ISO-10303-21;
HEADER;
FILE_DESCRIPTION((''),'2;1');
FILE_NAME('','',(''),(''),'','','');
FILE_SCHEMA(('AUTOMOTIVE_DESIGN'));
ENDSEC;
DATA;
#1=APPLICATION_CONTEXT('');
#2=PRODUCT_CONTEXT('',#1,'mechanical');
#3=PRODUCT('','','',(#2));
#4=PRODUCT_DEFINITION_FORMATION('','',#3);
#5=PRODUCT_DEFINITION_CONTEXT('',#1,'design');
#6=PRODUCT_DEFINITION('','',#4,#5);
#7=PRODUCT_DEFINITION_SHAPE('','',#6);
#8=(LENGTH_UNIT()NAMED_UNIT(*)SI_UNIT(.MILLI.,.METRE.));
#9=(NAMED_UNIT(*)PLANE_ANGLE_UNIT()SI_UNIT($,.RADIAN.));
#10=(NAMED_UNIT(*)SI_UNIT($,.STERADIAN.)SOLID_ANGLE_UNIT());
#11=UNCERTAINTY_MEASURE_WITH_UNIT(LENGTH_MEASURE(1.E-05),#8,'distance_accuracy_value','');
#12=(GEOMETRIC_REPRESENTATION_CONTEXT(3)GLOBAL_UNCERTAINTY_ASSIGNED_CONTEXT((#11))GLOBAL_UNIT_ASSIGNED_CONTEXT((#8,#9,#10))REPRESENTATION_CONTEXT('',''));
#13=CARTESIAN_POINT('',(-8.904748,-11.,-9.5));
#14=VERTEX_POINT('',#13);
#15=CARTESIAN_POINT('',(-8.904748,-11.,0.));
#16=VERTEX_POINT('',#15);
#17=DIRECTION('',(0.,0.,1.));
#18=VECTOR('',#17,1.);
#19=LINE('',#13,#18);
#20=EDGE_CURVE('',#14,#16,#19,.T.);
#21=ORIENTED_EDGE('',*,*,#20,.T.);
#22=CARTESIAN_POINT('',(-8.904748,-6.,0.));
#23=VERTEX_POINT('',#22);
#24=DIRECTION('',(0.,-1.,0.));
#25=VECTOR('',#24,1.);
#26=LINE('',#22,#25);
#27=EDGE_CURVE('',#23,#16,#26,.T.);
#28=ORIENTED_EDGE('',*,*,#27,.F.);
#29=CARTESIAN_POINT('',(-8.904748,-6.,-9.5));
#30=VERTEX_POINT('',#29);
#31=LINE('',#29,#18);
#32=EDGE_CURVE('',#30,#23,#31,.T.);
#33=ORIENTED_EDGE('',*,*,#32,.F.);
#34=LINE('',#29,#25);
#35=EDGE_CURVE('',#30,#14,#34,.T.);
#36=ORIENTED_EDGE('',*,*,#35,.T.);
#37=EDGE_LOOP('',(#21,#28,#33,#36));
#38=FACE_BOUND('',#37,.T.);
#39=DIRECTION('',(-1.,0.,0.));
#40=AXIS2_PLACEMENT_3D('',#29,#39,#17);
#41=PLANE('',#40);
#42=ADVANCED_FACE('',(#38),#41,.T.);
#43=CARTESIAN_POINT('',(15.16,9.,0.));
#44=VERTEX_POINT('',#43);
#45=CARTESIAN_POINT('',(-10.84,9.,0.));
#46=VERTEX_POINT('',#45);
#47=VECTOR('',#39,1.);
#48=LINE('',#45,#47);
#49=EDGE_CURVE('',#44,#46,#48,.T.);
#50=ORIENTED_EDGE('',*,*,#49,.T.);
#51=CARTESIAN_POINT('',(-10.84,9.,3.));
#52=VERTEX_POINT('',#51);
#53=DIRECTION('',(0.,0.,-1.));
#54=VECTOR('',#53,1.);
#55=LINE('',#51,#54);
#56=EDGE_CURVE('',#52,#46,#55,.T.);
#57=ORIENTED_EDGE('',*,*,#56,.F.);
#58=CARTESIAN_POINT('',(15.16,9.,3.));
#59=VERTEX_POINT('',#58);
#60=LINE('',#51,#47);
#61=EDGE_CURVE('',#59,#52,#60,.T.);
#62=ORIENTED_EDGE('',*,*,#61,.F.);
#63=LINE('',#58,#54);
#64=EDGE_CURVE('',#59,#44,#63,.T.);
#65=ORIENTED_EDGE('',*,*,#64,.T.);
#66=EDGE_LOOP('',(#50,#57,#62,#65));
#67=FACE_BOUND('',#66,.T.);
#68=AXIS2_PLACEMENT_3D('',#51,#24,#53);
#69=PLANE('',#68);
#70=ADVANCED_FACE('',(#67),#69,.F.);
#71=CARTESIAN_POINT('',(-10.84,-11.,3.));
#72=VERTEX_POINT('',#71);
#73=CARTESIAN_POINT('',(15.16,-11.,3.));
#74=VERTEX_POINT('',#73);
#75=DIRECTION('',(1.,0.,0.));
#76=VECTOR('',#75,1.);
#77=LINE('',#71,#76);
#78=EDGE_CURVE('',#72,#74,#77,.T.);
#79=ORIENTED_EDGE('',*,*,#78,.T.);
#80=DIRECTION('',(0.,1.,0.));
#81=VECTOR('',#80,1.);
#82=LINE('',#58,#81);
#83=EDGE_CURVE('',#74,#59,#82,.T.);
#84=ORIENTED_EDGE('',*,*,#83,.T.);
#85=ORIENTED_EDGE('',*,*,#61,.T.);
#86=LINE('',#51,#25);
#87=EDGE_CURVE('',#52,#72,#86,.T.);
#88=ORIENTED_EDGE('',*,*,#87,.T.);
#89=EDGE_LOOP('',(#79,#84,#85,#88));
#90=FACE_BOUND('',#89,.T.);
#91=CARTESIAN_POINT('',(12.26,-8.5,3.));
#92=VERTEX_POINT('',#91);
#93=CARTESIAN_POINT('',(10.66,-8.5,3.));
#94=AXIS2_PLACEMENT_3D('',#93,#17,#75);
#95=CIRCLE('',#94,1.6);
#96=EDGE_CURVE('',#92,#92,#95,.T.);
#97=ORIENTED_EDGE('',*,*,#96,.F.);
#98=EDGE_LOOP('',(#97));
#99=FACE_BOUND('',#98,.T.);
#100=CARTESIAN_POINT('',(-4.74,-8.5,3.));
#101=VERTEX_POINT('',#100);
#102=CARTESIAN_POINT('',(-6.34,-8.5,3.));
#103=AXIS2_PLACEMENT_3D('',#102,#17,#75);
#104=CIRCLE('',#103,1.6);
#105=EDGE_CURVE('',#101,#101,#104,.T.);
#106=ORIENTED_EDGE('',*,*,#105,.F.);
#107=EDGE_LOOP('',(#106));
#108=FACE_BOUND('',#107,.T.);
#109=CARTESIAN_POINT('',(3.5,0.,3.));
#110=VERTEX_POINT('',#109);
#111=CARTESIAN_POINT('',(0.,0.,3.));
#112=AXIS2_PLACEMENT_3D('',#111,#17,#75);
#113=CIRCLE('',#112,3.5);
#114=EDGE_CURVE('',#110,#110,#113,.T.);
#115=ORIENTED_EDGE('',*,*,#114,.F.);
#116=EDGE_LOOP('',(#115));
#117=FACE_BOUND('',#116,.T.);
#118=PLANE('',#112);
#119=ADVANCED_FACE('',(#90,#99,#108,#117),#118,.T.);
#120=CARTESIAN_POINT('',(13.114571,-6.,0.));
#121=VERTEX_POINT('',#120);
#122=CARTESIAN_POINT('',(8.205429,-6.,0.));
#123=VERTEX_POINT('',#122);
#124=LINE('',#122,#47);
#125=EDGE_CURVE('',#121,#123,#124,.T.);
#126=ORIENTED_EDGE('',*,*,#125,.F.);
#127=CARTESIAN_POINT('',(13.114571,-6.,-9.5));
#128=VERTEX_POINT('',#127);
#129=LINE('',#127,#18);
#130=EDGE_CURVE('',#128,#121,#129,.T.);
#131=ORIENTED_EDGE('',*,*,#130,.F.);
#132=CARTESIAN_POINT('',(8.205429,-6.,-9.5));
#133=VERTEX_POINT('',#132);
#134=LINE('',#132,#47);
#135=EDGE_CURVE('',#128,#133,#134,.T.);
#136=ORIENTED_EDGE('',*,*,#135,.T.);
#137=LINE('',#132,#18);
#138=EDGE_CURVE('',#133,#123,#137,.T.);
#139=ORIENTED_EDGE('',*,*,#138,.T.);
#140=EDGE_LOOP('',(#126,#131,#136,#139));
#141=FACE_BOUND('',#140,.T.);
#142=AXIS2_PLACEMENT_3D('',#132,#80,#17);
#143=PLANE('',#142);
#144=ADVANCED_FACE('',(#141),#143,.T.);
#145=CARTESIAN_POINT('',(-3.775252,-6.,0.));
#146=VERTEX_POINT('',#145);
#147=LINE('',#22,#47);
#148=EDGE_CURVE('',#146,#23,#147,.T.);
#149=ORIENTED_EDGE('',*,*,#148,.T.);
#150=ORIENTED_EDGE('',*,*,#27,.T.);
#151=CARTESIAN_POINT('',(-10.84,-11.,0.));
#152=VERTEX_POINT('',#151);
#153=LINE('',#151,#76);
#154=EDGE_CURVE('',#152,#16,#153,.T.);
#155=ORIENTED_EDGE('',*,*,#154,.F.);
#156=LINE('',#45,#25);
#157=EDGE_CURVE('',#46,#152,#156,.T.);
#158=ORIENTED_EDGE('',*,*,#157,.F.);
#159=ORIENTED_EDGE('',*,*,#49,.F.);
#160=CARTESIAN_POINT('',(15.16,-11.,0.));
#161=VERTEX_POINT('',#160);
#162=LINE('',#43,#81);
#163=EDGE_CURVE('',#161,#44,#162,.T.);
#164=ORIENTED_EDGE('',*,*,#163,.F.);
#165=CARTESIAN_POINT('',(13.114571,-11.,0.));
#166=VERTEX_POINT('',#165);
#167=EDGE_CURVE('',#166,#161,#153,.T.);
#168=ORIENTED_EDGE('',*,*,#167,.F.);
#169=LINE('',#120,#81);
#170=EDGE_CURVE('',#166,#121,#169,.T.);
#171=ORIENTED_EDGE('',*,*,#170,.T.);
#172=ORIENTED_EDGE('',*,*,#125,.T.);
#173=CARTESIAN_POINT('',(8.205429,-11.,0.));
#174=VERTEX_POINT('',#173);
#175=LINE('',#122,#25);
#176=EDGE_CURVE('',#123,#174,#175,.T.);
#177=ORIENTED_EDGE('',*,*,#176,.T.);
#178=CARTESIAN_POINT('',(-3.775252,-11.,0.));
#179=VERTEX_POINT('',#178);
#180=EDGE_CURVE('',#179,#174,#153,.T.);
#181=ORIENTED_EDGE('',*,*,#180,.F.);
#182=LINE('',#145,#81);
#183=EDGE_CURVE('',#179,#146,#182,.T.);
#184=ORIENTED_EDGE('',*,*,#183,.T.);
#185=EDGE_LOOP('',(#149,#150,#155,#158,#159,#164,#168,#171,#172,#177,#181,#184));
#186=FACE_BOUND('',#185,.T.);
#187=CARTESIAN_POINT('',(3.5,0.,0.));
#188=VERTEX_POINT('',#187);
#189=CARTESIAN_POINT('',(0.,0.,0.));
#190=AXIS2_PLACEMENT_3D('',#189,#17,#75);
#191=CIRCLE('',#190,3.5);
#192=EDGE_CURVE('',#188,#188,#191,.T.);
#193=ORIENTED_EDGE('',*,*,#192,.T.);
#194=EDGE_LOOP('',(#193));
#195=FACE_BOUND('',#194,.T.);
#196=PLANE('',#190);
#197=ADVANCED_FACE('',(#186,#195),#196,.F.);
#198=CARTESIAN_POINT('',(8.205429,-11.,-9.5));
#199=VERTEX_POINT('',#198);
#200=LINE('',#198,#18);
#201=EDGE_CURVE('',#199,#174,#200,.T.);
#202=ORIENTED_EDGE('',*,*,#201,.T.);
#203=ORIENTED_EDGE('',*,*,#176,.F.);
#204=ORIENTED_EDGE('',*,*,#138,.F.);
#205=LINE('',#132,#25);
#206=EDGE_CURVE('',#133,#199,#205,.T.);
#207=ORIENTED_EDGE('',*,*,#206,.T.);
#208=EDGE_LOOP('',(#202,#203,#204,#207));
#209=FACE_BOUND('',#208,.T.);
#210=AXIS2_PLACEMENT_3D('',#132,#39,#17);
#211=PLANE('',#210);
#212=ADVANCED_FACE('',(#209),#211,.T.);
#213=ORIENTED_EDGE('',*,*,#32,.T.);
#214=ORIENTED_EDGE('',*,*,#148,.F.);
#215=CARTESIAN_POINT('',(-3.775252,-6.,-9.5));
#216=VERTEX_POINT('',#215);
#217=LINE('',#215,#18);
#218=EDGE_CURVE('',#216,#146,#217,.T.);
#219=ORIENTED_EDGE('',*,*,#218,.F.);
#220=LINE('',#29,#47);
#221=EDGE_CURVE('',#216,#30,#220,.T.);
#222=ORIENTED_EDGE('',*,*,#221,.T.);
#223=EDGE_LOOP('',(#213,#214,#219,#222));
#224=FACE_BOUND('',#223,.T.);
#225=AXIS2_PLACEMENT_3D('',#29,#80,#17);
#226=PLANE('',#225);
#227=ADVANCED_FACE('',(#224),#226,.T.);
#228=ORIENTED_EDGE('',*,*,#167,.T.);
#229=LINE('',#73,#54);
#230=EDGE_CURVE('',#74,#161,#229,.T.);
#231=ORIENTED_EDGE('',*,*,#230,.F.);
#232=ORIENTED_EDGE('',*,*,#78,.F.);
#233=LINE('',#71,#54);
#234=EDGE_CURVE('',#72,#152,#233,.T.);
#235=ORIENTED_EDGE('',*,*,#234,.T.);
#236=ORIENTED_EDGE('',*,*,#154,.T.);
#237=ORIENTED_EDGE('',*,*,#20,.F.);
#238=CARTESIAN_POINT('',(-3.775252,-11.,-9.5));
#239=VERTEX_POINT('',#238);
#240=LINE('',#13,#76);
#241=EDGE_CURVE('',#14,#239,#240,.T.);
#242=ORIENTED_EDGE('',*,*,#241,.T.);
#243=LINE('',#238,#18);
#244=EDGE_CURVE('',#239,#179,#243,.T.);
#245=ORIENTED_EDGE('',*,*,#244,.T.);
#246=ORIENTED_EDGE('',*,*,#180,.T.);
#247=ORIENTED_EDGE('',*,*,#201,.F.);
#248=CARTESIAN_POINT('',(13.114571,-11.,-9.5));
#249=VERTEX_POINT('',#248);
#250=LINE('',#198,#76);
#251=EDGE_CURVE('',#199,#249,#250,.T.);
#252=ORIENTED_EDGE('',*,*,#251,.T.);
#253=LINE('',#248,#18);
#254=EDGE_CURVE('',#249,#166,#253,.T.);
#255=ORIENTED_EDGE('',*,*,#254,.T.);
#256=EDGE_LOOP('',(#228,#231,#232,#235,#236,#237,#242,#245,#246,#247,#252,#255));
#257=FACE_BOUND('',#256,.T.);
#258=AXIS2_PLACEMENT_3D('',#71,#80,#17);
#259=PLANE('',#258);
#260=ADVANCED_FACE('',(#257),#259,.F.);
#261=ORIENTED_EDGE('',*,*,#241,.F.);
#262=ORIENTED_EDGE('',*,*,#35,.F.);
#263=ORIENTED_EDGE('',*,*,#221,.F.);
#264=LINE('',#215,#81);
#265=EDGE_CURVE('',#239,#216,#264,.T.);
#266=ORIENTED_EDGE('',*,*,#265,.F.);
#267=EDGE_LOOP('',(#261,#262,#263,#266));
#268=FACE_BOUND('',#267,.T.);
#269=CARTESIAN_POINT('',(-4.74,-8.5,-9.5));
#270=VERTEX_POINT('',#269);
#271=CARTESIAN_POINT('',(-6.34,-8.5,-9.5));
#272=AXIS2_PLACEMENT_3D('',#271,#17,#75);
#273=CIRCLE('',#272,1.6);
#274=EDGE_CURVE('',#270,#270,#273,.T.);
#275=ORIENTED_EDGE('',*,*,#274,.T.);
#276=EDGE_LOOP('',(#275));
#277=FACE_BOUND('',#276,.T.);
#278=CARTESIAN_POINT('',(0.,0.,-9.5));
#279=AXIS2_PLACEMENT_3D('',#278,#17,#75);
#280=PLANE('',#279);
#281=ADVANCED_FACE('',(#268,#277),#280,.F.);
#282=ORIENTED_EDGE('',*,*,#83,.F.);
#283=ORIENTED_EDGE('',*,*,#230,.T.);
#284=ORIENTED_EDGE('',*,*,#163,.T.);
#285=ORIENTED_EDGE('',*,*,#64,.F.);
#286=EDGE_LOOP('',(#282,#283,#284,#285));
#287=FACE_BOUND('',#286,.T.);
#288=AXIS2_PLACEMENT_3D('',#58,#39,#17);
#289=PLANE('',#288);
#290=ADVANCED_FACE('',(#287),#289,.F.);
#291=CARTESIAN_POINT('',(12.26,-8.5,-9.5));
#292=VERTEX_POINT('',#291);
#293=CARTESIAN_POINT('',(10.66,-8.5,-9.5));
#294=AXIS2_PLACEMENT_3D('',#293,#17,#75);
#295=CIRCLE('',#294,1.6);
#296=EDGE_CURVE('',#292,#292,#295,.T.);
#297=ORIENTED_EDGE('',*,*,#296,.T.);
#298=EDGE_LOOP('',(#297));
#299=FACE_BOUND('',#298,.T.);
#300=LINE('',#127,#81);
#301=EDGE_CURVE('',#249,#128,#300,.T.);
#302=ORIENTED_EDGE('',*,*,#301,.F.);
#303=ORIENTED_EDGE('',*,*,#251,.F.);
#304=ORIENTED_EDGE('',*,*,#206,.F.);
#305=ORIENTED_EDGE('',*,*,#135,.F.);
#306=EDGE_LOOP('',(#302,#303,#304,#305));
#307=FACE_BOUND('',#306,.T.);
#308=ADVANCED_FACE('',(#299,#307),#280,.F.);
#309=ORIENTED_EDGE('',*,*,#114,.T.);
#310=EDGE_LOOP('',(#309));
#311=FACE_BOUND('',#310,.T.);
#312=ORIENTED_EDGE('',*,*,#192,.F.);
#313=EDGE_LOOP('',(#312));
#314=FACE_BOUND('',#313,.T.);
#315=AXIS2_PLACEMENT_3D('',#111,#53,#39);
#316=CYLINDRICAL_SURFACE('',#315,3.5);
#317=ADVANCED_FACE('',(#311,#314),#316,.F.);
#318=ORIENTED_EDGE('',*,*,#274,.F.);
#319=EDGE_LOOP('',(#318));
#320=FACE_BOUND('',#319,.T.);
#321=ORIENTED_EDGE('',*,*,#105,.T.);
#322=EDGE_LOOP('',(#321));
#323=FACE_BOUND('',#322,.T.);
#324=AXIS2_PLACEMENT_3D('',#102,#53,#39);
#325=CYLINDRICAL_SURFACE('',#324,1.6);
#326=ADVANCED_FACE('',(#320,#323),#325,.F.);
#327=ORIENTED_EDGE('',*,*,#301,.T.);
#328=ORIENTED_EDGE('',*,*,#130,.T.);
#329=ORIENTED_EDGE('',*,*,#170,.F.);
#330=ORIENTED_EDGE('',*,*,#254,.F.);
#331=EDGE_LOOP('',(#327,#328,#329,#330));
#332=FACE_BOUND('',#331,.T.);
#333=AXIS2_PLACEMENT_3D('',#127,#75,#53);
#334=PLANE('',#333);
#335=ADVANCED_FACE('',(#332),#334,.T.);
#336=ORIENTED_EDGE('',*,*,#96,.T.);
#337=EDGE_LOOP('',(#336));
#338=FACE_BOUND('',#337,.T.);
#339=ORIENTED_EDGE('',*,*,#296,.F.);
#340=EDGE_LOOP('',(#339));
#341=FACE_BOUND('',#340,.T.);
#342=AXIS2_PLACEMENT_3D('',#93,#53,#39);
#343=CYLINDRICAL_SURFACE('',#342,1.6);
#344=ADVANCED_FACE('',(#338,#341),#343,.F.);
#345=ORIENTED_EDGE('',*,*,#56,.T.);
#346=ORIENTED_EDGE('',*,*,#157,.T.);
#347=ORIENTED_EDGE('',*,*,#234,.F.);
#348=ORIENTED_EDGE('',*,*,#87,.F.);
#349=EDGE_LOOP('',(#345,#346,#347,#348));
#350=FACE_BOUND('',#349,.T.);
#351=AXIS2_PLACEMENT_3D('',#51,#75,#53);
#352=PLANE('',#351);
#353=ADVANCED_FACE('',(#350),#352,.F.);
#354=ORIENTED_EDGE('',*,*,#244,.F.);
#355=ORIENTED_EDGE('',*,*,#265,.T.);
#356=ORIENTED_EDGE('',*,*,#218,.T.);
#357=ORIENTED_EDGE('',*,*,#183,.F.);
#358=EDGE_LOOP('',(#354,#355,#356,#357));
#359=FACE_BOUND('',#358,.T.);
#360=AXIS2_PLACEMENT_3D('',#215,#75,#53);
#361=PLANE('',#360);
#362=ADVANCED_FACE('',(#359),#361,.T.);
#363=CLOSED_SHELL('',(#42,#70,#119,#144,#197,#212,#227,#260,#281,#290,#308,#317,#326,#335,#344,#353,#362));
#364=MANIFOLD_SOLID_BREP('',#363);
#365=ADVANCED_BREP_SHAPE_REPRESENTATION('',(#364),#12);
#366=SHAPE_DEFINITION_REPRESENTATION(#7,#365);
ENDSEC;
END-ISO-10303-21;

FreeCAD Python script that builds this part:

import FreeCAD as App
import Part
import Sketcher
Q = App.Units.Quantity

doc = App.newDocument("Part")
body = doc.addObject("PartDesign::Body", "Body")

sketch1 = body.newObject("Sketcher::SketchObject", "Sketch")
sketch1.AttachmentSupport = (doc.getObject("XY_Plane"), [""])
sketch1.MapMode = "FlatFace"
sketch1.addGeometry([
    Part.LineSegment(App.Vector(-10.8, 9, 0), App.Vector(-10.8, -11, 0)),
    Part.LineSegment(App.Vector(-10.8, -11, 0), App.Vector(15.2, -11, 0)),
    Part.LineSegment(App.Vector(15.2, -11, 0), App.Vector(15.2, 9, 0)),
    Part.LineSegment(App.Vector(15.2, 9, 0), App.Vector(-10.8, 9, 0)),
    Part.Circle(App.Vector(-6.3, -8.5, 0), App.Vector(0, 0, 1), 1.6),
    Part.Circle(App.Vector(10.7, -8.5, 0), App.Vector(0, 0, 1), 1.6),
    Part.Circle(App.Vector(0, 0, 0), App.Vector(0, 0, 1), 3.5),
], False)
sketch1.addConstraint([
    Sketcher.Constraint("Coincident", 0, 2, 1, 1),
    Sketcher.Constraint("Coincident", 1, 2, 2, 1),
    Sketcher.Constraint("Coincident", 2, 2, 3, 1),
    Sketcher.Constraint("Coincident", 3, 2, 0, 1),
    Sketcher.Constraint("Vertical", 0),
    Sketcher.Constraint("Horizontal", 1),
    Sketcher.Constraint("Vertical", 2),
    Sketcher.Constraint("Horizontal", 3),
    Sketcher.Constraint("Coincident", 6, 3, -1, 1),
    Sketcher.Constraint("Equal", 4, 5),
    Sketcher.Constraint("Horizontal", 4, 3, 5, 3),
    Sketcher.Constraint("Diameter", 6, Q("7 mm")),
    Sketcher.Constraint("Diameter", 4, Q("3.2 mm")),
    Sketcher.Constraint("DistanceX", 1, 1, 1, 2, Q("26 mm")),
    Sketcher.Constraint("DistanceY", 0, 2, 0, 1, Q("20 mm")),
    Sketcher.Constraint("DistanceY", 0, 2, -1, 1, Q("11 mm")),
    Sketcher.Constraint("DistanceX", 4, 3, 5, 3, Q("17 mm")),
    Sketcher.Constraint("DistanceY", 4, 3, -1, 1, Q("8.5 mm")),
    Sketcher.Constraint("DistanceX", 0, 2, 4, 3, Q("4.5 mm")),
    Sketcher.Constraint("DistanceX", 4, 3, -1, 1, Q("6.34 mm")),
])
pad1 = body.newObject("PartDesign::Pad", "Pad")
pad1.Profile = sketch1
pad1.Length = 3

sketch2 = body.newObject("Sketcher::SketchObject", "Sketch001")
sketch2.AttachmentSupport = (doc.getObject("XY_Plane"), [""])
sketch2.MapMode = "FlatFace"
sketch2.AttachmentOffset = App.Placement(App.Vector(0, 0, -9.5), App.Rotation())
sketch2.addGeometry([
    Part.LineSegment(App.Vector(-8.9, -6, 0), App.Vector(-8.9, -11, 0)),
    Part.LineSegment(App.Vector(-8.9, -11, 0), App.Vector(-3.8, -11, 0)),
    Part.LineSegment(App.Vector(-3.8, -11, 0), App.Vector(-3.8, -6, 0)),
    Part.LineSegment(App.Vector(-3.8, -6, 0), App.Vector(-8.9, -6, 0)),
    Part.Circle(App.Vector(-6.3, -8.5, 0), App.Vector(0, 0, 1), 1.6),
    Part.LineSegment(App.Vector(8.2, -6, 0), App.Vector(8.2, -11, 0)),
    Part.LineSegment(App.Vector(8.2, -11, 0), App.Vector(13.1, -11, 0)),
    Part.LineSegment(App.Vector(13.1, -11, 0), App.Vector(13.1, -6, 0)),
    Part.LineSegment(App.Vector(13.1, -6, 0), App.Vector(8.2, -6, 0)),
    Part.Circle(App.Vector(10.7, -8.5, 0), App.Vector(0, 0, 1), 1.6),
], False)
sketch2.addConstraint([
    Sketcher.Constraint("Coincident", 0, 2, 1, 1),
    Sketcher.Constraint("Coincident", 1, 2, 2, 1),
    Sketcher.Constraint("Coincident", 2, 2, 3, 1),
    Sketcher.Constraint("Coincident", 3, 2, 0, 1),
    Sketcher.Constraint("Coincident", 5, 2, 6, 1),
    Sketcher.Constraint("Coincident", 6, 2, 7, 1),
    Sketcher.Constraint("Coincident", 7, 2, 8, 1),
    Sketcher.Constraint("Coincident", 8, 2, 5, 1),
    Sketcher.Constraint("Vertical", 0),
    Sketcher.Constraint("Horizontal", 1),
    Sketcher.Constraint("Vertical", 2),
    Sketcher.Constraint("Horizontal", 3),
    Sketcher.Constraint("Vertical", 5),
    Sketcher.Constraint("Horizontal", 6),
    Sketcher.Constraint("Vertical", 7),
    Sketcher.Constraint("Horizontal", 8),
    Sketcher.Constraint("Equal", 4, 9),
    Sketcher.Constraint("Horizontal", 4, 3, 9, 3),
    Sketcher.Constraint("Horizontal", 1, 2, 5, 2),
    Sketcher.Constraint("Horizontal", 3, 2, 7, 2),
    Sketcher.Constraint("Diameter", 4, Q("3.2 mm")),
    Sketcher.Constraint("DistanceY", 0, 2, 0, 1, Q("5 mm")),
    Sketcher.Constraint("DistanceY", 0, 2, -1, 1, Q("11 mm")),
    Sketcher.Constraint("DistanceX", 4, 3, 9, 3, Q("17 mm")),
    Sketcher.Constraint("DistanceY", 4, 3, -1, 1, Q("8.5 mm")),
    Sketcher.Constraint("DistanceX", 4, 3, -1, 1, Q("6.34 mm")),
    Sketcher.Constraint("DistanceX", 6, 1, 6, 2, Q("4.909141 mm")),
    Sketcher.Constraint("DistanceX", 1, 1, 1, 2, Q("5.129495 mm")),
    Sketcher.Constraint("DistanceX", -1, 1, 5, 2, Q("8.205429 mm")),
    Sketcher.Constraint("DistanceX", 1, 2, 5, 2, Q("11.980682 mm")),
])
pad2 = body.newObject("PartDesign::Pad", "Pad001")
pad2.Profile = sketch2
pad2.Length = 9.5

doc.recompute()
